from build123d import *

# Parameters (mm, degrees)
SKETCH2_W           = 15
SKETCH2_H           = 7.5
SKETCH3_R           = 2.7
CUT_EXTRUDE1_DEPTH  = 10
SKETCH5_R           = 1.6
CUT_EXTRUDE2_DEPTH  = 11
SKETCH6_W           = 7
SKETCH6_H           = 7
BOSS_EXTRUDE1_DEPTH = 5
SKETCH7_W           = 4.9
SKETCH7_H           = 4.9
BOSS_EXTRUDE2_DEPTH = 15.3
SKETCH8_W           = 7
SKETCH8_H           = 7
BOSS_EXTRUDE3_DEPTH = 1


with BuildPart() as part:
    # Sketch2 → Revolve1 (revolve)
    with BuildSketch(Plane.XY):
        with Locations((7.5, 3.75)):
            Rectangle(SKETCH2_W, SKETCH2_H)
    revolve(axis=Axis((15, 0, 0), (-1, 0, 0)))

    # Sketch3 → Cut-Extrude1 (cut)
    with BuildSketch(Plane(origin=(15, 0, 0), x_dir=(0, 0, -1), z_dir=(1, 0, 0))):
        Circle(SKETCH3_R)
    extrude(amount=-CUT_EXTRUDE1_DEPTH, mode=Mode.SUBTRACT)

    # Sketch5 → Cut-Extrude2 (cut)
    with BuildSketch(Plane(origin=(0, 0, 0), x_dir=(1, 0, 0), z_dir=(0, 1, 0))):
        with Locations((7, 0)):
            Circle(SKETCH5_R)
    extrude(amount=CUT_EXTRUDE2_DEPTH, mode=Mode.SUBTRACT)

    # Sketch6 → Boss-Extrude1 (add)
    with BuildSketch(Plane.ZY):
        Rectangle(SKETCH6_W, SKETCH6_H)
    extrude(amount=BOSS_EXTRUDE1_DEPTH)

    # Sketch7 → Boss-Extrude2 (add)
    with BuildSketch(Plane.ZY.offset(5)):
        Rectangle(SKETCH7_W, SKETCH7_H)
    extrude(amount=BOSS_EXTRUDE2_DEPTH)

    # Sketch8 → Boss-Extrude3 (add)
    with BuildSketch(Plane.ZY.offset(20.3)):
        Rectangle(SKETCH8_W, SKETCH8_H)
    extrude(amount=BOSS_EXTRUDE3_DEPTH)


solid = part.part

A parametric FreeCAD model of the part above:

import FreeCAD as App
import Part
import Sketcher
Q = App.Units.Quantity

doc = App.newDocument("Part")
params = doc.addObject("Spreadsheet::Sheet", "Params")
for row, (alias, value) in enumerate([
    ("sketch1_width", "15 mm"),
    ("sketch1_height", "7.5 mm"),
    ("revolution_angle", "360 deg"),
    ("sketch2_diameter", "5.4 mm"),
    ("pocket1_length", "10 mm"),
    ("sketch3_diameter", "3.2 mm"),
    ("pocket2_length", "11 mm"),
    ("sketch4_width", "7 mm"),
    ("pad1_length", "5 mm"),
    ("sketch5_width", "4.9 mm"),
    ("pad2_length", "15.3 mm"),
    ("sketch6_width", "7 mm"),
    ("pad3_length", "1 mm"),
], start=1):
    params.set(f"A{row}", alias)
    params.set(f"B{row}", "=" + value)
    params.setAlias(f"B{row}", alias)

body = doc.addObject("PartDesign::Body", "Body")

# Sketch on XY plane
sketch1 = body.newObject("Sketcher::SketchObject", "Sketch")
sketch1.AttachmentSupport = (doc.getObject("XY_Plane"), [""])
sketch1.MapMode = "FlatFace"
sketch1.addGeometry([
    Part.LineSegment(App.Vector(0, 8, 0), App.Vector(0, 0, 0)),
    Part.LineSegment(App.Vector(0, 0, 0), App.Vector(15, 0, 0)),
    Part.LineSegment(App.Vector(15, 0, 0), App.Vector(15, 8, 0)),
    Part.LineSegment(App.Vector(15, 8, 0), App.Vector(0, 8, 0)),
], False)
sketch1.addConstraint([
    Sketcher.Constraint("Coincident", 0, 2, 1, 1),
    Sketcher.Constraint("Coincident", 1, 2, 2, 1),
    Sketcher.Constraint("Coincident", 2, 2, 3, 1),
    Sketcher.Constraint("Coincident", 3, 2, 0, 1),
    Sketcher.Constraint("Vertical", 0),
    Sketcher.Constraint("Horizontal", 1),
    Sketcher.Constraint("Vertical", 2),
    Sketcher.Constraint("Horizontal", 3),
    Sketcher.Constraint("Coincident", 0, 2, -1, 1),
    Sketcher.Constraint("DistanceX", 1, 1, 1, 2, Q("15 mm")),
    Sketcher.Constraint("DistanceY", 0, 2, 0, 1, Q("7.5 mm")),
])
sketch1.setExpression("Constraints[9]", "Params.sketch1_width")
sketch1.setExpression("Constraints[10]", "Params.sketch1_height")
revolution = body.newObject("PartDesign::Revolution", "Revolution")
revolution.Profile = sketch1
revolution.ReferenceAxis = (sketch1, ["H_Axis"])
revolution.setExpression("Angle", "Params.revolution_angle")

# Sketch on YZ plane
sketch2 = body.newObject("Sketcher::SketchObject", "Sketch001")
sketch2.AttachmentSupport = (doc.getObject("YZ_Plane"), [""])
sketch2.MapMode = "FlatFace"
sketch2.AttachmentOffset = App.Placement(App.Vector(0, 0, 15), App.Rotation())
sketch2.addGeometry(Part.Circle(App.Vector(0, 0, 0), App.Vector(0, 0, 1), 2.7), False)
sketch2.addConstraint([
    Sketcher.Constraint("Coincident", 0, 3, -1, 1),
    Sketcher.Constraint("Diameter", 0, Q("5.4 mm")),
])
sketch2.setExpression("Constraints[1]", "Params.sketch2_diameter")
pocket1 = body.newObject("PartDesign::Pocket", "Pocket")
pocket1.Profile = sketch2
pocket1.setExpression("Length", "Params.pocket1_length")

# Sketch on XZ plane
sketch3 = body.newObject("Sketcher::SketchObject", "Sketch002")
sketch3.AttachmentSupport = (doc.getObject("XZ_Plane"), [""])
sketch3.MapMode = "FlatFace"
sketch3.addGeometry(Part.Circle(App.Vector(7, 0, 0), App.Vector(0, 0, 1), 1.6), False)
sketch3.addConstraint([
    Sketcher.Constraint("PointOnObject", 0, 3, -1),
    Sketcher.Constraint("Diameter", 0, Q("3.2 mm")),
    Sketcher.Constraint("DistanceX", -1, 1, 0, 3, Q("7 mm")),
])
sketch3.setExpression("Constraints[1]", "Params.sketch3_diameter")
pocket2 = body.newObject("PartDesign::Pocket", "Pocket001")
pocket2.Profile = sketch3
pocket2.setExpression("Length", "Params.pocket2_length")

# Sketch on YZ plane
sketch4 = body.newObject("Sketcher::SketchObject", "Sketch003")
sketch4.AttachmentSupport = (doc.getObject("YZ_Plane"), [""])
sketch4.MapMode = "FlatFace"
sketch4.addGeometry([
    Part.LineSegment(App.Vector(4, -4, 0), App.Vector(-4, -4, 0)),
    Part.LineSegment(App.Vector(-4, -4, 0), App.Vector(-4, 4, 0)),
    Part.LineSegment(App.Vector(-4, 4, 0), App.Vector(4, 4, 0)),
    Part.LineSegment(App.Vector(4, 4, 0), App.Vector(4, -4, 0)),
], False)
sketch4.addConstraint([
    Sketcher.Constraint("Coincident", 0, 2, 1, 1),
    Sketcher.Constraint("Coincident", 1, 2, 2, 1),
    Sketcher.Constraint("Coincident", 2, 2, 3, 1),
    Sketcher.Constraint("Coincident", 3, 2, 0, 1),
    Sketcher.Constraint("Horizontal", 0),
    Sketcher.Constraint("Vertical", 1),
    Sketcher.Constraint("Horizontal", 2),
    Sketcher.Constraint("Vertical", 3),
    Sketcher.Constraint("Symmetric", 0, 2, 2, 2, -1, 1),
    Sketcher.Constraint("Equal", 2, 1),
    Sketcher.Constraint("DistanceX", 0, 2, 0, 1, Q("7 mm")),
])
sketch4.setExpression("Constraints[10]", "Params.sketch4_width")
pad1 = body.newObject("PartDesign::Pad", "Pad")
pad1.Profile = sketch4
pad1.setExpression("Length", "Params.pad1_length")
pad1.Reversed = True

# Sketch on YZ plane
sketch5 = body.newObject("Sketcher::SketchObject", "Sketch004")
sketch5.AttachmentSupport = (doc.getObject("YZ_Plane"), [""])
sketch5.MapMode = "FlatFace"
sketch5.AttachmentOffset = App.Placement(App.Vector(0, 0, -5), App.Rotation())
sketch5.addGeometry([
    Part.LineSegment(App.Vector(2.5, -2.5, 0), App.Vector(-2.5, -2.5, 0)),
    Part.LineSegment(App.Vector(-2.5, -2.5, 0), App.Vector(-2.5, 2.5, 0)),
    Part.LineSegment(App.Vector(-2.5, 2.5, 0), App.Vector(2.5, 2.5, 0)),
    Part.LineSegment(App.Vector(2.5, 2.5, 0), App.Vector(2.5, -2.5, 0)),
], False)
sketch5.addConstraint([
    Sketcher.Constraint("Coincident", 0, 2, 1, 1),
    Sketcher.Constraint("Coincident", 1, 2, 2, 1),
    Sketcher.Constraint("Coincident", 2, 2, 3, 1),
    Sketcher.Constraint("Coincident", 3, 2, 0, 1),
    Sketcher.Constraint("Horizontal", 0),
    Sketcher.Constraint("Vertical", 1),
    Sketcher.Constraint("Horizontal", 2),
    Sketcher.Constraint("Vertical", 3),
    Sketcher.Constraint("Symmetric", 0, 2, 2, 2, -1, 1),
    Sketcher.Constraint("Equal", 2, 1),
    Sketcher.Constraint("DistanceX", 0, 2, 0, 1, Q("4.9 mm")),
])
sketch5.setExpression("Constraints[10]", "Params.sketch5_width")
pad2 = body.newObject("PartDesign::Pad", "Pad001")
pad2.Profile = sketch5
pad2.setExpression("Length", "Params.pad2_length")
pad2.Reversed = True

# Sketch on YZ plane
sketch6 = body.newObject("Sketcher::SketchObject", "Sketch005")
sketch6.AttachmentSupport = (doc.getObject("YZ_Plane"), [""])
sketch6.MapMode = "FlatFace"
sketch6.AttachmentOffset = App.Placement(App.Vector(0, 0, -20.3), App.Rotation())
sketch6.addGeometry([
    Part.LineSegment(App.Vector(4, -4, 0), App.Vector(-4, -4, 0)),
    Part.LineSegment(App.Vector(-4, -4, 0), App.Vector(-4, 4, 0)),
    Part.LineSegment(App.Vector(-4, 4, 0), App.Vector(4, 4, 0)),
    Part.LineSegment(App.Vector(4, 4, 0), App.Vector(4, -4, 0)),
], False)
sketch6.addConstraint([
    Sketcher.Constraint("Coincident", 0, 2, 1, 1),
    Sketcher.Constraint("Coincident", 1, 2, 2, 1),
    Sketcher.Constraint("Coincident", 2, 2, 3, 1),
    Sketcher.Constraint("Coincident", 3, 2, 0, 1),
    Sketcher.Constraint("Horizontal", 0),
    Sketcher.Constraint("Vertical", 1),
    Sketcher.Constraint("Horizontal", 2),
    Sketcher.Constraint("Vertical", 3),
    Sketcher.Constraint("Symmetric", 0, 2, 2, 2, -1, 1),
    Sketcher.Constraint("Equal", 2, 1),
    Sketcher.Constraint("DistanceX", 0, 2, 0, 1, Q("7 mm")),
])
sketch6.setExpression("Constraints[10]", "Params.sketch6_width")
pad3 = body.newObject("PartDesign::Pad", "Pad002")
pad3.Profile = sketch6
pad3.setExpression("Length", "Params.pad3_length")
pad3.Reversed = True

doc.recompute()
